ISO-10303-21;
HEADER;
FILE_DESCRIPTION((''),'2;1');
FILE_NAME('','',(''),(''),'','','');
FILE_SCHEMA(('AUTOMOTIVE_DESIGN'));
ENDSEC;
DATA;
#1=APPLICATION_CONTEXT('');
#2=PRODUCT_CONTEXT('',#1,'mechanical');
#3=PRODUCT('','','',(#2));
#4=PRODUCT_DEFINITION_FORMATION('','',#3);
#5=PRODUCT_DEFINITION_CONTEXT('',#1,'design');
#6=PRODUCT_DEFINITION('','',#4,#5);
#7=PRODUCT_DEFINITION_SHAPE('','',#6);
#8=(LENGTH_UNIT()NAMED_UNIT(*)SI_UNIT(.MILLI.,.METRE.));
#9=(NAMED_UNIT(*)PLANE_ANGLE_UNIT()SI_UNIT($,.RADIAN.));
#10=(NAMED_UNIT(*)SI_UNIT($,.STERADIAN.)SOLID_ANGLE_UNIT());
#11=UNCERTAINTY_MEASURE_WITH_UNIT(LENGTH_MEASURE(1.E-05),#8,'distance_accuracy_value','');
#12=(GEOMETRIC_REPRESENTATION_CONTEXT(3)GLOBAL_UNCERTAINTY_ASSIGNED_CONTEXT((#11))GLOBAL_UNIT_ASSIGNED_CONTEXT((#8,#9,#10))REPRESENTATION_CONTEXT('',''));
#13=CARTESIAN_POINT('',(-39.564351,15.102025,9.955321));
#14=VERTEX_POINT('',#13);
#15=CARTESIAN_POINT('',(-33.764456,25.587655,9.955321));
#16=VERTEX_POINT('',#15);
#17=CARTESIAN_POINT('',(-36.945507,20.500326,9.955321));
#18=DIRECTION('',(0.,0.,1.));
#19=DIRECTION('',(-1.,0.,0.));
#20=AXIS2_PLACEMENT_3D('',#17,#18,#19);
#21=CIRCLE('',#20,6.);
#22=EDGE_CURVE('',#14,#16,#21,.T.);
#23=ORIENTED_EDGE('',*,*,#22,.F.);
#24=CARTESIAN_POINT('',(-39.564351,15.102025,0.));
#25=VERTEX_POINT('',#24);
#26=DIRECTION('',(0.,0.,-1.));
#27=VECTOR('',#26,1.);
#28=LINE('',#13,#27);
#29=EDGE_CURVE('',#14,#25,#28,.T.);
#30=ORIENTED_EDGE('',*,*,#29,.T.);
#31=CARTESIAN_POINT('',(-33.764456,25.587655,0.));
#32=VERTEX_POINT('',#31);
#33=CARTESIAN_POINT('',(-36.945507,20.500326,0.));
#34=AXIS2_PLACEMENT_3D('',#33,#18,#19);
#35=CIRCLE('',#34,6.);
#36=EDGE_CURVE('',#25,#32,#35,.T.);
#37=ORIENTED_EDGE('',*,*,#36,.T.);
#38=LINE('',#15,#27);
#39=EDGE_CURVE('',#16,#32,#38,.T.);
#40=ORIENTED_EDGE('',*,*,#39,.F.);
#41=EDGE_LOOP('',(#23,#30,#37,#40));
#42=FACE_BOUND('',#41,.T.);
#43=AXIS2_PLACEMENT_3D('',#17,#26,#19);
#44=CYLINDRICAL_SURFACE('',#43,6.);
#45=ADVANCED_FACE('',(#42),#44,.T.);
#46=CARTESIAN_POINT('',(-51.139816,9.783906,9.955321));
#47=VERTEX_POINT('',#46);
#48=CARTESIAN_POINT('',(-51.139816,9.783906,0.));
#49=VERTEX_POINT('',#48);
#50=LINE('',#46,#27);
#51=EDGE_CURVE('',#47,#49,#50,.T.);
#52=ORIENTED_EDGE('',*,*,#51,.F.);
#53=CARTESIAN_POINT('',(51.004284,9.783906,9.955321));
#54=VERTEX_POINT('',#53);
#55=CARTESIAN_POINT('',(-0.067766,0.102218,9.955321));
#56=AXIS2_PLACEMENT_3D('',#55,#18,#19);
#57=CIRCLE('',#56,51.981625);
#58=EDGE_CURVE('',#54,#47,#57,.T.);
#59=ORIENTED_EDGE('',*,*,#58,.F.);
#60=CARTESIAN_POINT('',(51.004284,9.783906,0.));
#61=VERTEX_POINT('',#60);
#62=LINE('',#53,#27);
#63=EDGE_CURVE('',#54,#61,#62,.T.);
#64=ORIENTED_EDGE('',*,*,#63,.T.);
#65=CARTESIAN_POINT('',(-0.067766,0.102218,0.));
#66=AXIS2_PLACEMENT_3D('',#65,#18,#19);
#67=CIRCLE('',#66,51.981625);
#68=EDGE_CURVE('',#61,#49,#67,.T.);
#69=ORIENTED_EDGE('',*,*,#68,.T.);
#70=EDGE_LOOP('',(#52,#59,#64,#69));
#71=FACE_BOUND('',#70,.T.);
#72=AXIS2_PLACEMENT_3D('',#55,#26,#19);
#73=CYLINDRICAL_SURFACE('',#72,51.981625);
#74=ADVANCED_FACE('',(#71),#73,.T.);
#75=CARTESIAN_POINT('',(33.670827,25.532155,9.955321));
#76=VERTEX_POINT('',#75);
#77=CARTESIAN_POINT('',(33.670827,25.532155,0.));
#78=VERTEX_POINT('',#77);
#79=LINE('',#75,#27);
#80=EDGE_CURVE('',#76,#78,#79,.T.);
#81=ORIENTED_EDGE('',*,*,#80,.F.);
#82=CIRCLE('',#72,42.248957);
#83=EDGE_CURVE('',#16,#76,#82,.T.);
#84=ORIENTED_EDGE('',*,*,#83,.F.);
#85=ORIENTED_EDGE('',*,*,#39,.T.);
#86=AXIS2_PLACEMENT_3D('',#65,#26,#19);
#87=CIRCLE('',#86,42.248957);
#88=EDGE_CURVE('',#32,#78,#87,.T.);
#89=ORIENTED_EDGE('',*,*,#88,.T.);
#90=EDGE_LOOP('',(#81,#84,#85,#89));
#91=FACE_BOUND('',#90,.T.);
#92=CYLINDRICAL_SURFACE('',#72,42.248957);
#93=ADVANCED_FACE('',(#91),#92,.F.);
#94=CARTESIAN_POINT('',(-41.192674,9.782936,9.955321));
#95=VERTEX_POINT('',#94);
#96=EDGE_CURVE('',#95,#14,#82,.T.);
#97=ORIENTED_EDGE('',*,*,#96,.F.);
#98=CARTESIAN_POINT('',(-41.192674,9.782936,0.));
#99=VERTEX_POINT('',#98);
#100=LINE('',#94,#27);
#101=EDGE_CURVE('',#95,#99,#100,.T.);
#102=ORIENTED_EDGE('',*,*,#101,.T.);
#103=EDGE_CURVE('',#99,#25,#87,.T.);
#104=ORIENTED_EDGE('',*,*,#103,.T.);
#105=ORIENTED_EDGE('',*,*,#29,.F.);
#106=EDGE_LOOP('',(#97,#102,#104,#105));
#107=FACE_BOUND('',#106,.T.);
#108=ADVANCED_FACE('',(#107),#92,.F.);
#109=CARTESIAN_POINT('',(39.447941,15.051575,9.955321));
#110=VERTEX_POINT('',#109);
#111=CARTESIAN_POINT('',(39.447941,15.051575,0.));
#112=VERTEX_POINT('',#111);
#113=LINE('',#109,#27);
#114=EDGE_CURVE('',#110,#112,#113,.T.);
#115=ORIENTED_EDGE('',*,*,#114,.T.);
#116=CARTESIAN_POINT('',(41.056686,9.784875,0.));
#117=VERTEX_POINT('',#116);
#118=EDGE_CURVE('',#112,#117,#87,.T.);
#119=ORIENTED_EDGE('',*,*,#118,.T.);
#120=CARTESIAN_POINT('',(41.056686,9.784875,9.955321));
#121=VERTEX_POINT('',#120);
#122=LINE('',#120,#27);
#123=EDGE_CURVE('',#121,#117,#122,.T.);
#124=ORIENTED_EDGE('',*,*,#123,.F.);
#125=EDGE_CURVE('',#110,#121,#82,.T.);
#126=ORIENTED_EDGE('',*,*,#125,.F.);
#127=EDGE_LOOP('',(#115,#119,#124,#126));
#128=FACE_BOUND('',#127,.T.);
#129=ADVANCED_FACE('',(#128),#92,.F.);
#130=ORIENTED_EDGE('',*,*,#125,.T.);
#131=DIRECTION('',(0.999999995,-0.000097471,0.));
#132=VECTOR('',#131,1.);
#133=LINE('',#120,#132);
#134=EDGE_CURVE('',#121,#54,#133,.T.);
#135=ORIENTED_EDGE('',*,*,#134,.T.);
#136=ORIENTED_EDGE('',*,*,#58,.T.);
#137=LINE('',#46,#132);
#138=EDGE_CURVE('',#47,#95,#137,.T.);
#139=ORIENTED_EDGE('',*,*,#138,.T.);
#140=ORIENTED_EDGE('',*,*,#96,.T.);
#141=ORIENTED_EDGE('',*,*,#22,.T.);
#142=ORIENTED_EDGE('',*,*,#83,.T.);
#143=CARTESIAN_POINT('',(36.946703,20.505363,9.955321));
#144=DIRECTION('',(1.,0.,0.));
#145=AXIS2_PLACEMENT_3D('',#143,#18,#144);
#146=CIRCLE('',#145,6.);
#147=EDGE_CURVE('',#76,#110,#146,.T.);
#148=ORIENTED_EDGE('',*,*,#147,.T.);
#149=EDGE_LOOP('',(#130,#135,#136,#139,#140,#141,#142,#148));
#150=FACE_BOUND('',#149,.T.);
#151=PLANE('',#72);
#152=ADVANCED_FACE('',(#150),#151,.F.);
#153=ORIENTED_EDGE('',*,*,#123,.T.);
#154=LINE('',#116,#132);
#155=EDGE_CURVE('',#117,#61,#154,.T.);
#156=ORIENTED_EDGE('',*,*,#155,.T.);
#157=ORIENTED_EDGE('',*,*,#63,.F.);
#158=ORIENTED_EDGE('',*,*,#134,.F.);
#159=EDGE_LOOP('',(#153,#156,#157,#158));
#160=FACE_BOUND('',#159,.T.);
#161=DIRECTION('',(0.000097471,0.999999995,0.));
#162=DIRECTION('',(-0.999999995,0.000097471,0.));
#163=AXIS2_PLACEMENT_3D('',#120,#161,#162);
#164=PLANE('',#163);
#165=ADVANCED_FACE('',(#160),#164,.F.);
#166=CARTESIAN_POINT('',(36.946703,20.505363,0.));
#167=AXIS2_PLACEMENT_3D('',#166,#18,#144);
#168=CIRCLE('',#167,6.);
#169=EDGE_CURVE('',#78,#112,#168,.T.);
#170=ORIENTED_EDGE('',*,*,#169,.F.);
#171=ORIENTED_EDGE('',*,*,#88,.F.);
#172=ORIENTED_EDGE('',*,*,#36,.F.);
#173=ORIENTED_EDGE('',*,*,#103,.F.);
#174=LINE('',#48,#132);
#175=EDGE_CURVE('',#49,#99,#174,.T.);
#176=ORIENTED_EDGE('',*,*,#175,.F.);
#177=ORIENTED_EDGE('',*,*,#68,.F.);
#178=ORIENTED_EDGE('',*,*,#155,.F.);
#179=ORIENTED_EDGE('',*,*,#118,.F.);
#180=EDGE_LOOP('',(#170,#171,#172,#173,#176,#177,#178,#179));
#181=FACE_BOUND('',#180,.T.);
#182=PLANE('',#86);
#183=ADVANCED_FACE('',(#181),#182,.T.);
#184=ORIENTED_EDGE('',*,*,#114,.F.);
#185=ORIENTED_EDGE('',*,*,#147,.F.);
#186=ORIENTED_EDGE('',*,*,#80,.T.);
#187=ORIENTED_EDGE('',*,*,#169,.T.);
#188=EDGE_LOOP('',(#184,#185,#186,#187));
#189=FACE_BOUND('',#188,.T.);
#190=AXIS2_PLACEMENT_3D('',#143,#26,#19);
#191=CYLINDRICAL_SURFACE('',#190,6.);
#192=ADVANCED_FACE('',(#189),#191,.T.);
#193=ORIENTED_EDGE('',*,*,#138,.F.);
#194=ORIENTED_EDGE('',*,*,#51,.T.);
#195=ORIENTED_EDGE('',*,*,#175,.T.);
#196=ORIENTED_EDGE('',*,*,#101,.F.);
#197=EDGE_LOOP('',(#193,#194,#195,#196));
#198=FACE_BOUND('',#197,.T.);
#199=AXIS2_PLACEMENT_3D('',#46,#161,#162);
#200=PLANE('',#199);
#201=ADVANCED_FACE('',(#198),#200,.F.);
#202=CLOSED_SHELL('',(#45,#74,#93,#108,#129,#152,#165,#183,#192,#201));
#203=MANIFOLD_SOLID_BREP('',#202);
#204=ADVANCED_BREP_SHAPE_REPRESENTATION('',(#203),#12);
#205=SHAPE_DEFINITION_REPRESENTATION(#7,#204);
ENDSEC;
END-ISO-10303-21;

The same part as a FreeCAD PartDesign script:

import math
import FreeCAD as App
import Part
import Sketcher
Q = App.Units.Quantity

doc = App.newDocument("Part")
body = doc.addObject("PartDesign::Body", "Body")

# Sketch on XY plane
sketch1 = body.newObject("Sketcher::SketchObject", "Sketch")
sketch1.AttachmentSupport = (doc.getObject("XY_Plane"), [""])
sketch1.MapMode = "FlatFace"
sketch1.addGeometry([
    Part.LineSegment(App.Vector(-51, 10, 0), App.Vector(-41, 10, 0)),  # 0
    Part.ArcOfCircle(Part.Circle(App.Vector(0, 0, 0), App.Vector(0, 0, 1), 42), math.radians(159.2), math.radians(166.75)),  # 1
    Part.ArcOfCircle(Part.Circle(App.Vector(-37, 21, 0), App.Vector(0, 0, 1), 6), math.radians(-116), math.radians(58)),  # 2
    Part.ArcOfCircle(Part.Circle(App.Vector(0, 0, 0), App.Vector(0, 0, 1), 42), math.radians(37), math.radians(143)),  # 3
    Part.ArcOfCircle(Part.Circle(App.Vector(37, 21, 0), App.Vector(0, 0, 1), 6), math.radians(123), math.radians(295)),  # 4
    Part.ArcOfCircle(Part.Circle(App.Vector(0, 0, 0), App.Vector(0, 0, 1), 42), math.radians(13.25), math.radians(20.72)),  # 5
    Part.LineSegment(App.Vector(41, 10, 0), App.Vector(51, 10, 0)),  # 6
    Part.ArcOfCircle(Part.Circle(App.Vector(0, 0, 0), App.Vector(0, 0, 1), 52), math.radians(11), math.radians(169)),  # 7
], False)
sketch1.addConstraint([
    Sketcher.Constraint("Coincident", 0, 2, 1, 2),
    Sketcher.Constraint("Coincident", 1, 1, 2, 1),
    Sketcher.Constraint("Coincident", 2, 2, 3, 2),
    Sketcher.Constraint("Coincident", 3, 1, 4, 1),
    Sketcher.Constraint("Coincident", 4, 2, 5, 2),
    Sketcher.Constraint("Coincident", 5, 1, 6, 1),
    Sketcher.Constraint("Coincident", 6, 2, 7, 1),
    Sketcher.Constraint("Coincident", 7, 2, 0, 1),
    Sketcher.Constraint("Coincident", 3, 3, 1, 3),
    Sketcher.Constraint("Coincident", 5, 3, 1, 3),
    Sketcher.Constraint("Coincident", 7, 3, 1, 3),
    Sketcher.Constraint("Equal", 1, 3),
    Sketcher.Constraint("Equal", 2, 4),
    Sketcher.Constraint("Equal", 3, 5),
    Sketcher.Constraint("Parallel", 0, 6),
    Sketcher.Constraint("Horizontal", 6, 2, 7, 2),
    Sketcher.Constraint("Radius", 2, Q("6 mm")),
    Sketcher.Constraint("Radius", 1, Q("42.248957 mm")),
    Sketcher.Constraint("Radius", 7, Q("51.981625 mm")),
    Sketcher.Constraint("Distance", 6, Q("9.947598 mm")),
    Sketcher.Constraint("DistanceY", 1, 1, 2, 3, Q("5.398302 mm")),
    Sketcher.Constraint("DistanceY", 5, 1, 4, 2, Q("5.2667 mm")),
    Sketcher.Constraint("Distance", 0, Q("9.947142 mm")),
    Sketcher.Constraint("DistanceY", -1, 1, 1, 3, Q("0.102218 mm")),
    Sketcher.Constraint("DistanceX", 1, 1, -1, 1, Q("39.564351 mm")),
    Sketcher.Constraint("DistanceX", -1, 1, 4, 2, Q("39.447941 mm")),
    Sketcher.Constraint("DistanceX", 1, 3, 4, 3, Q("37.014469 mm")),
])
pad1 = body.newObject("PartDesign::Pad", "Pad")
pad1.Profile = sketch1
pad1.Length = 9.955321

doc.recompute()
